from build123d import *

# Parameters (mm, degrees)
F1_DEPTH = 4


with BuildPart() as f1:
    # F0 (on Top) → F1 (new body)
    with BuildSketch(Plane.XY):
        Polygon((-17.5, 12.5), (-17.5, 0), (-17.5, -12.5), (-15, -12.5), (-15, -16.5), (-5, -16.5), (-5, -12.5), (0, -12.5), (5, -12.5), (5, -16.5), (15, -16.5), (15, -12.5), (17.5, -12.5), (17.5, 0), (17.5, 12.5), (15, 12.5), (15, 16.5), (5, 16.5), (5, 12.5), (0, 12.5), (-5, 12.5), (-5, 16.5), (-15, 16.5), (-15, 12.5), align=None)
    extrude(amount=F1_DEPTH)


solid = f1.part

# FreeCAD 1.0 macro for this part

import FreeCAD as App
import Part
import Sketcher

V = App.Vector
Q = App.Units.Quantity


def add_polygon(sketch, points):
    """Adds a closed chain of lines whose ends are joined by coincident constraints."""
    first, n = sketch.GeometryCount, len(points)
    for a, b in zip(points, points[1:] + points[:1]):
        sketch.addGeometry(Part.LineSegment(App.Vector(*a, 0), App.Vector(*b, 0)), False)
    for i in range(n):
        sketch.addConstraint(Sketcher.Constraint("Coincident", first + i, 2, first + (i + 1) % n, 1))

doc = App.newDocument("Part")
body = doc.addObject("PartDesign::Body", "Body")

sketch1 = body.newObject("Sketcher::SketchObject", "Sketch")
sketch1.AttachmentSupport = (doc.getObject("XY_Plane"), [""])
sketch1.MapMode = "FlatFace"
add_polygon(sketch1, [(-17.5, 12.5), (-17.5, -12.5), (-15, -12.5), (-15, -16.5), (-5, -16.5), (-5, -12.5), (5, -12.5), (5, -16.5), (15, -16.5), (15, -12.5), (17.5, -12.5), (17.5, 12.5), (15, 12.5), (15, 16.5), (5, 16.5), (5, 12.5), (-5, 12.5), (-5, 16.5), (-15, 16.5), (-15, 12.5)])
sketch1.addConstraint([
    Sketcher.Constraint("Vertical", 0),
    Sketcher.Constraint("Horizontal", 1),
    Sketcher.Constraint("Vertical", 2),
    Sketcher.Constraint("Horizontal", 3),
    Sketcher.Constraint("Vertical", 4),
    Sketcher.Constraint("Horizontal", 5),
    Sketcher.Constraint("Vertical", 6),
    Sketcher.Constraint("Horizontal", 7),
    Sketcher.Constraint("Vertical", 8),
    Sketcher.Constraint("Horizontal", 9),
    Sketcher.Constraint("Vertical", 10),
    Sketcher.Constraint("Horizontal", 11),
    Sketcher.Constraint("Vertical", 12),
    Sketcher.Constraint("Horizontal", 13),
    Sketcher.Constraint("Vertical", 14),
    Sketcher.Constraint("Horizontal", 15),
    Sketcher.Constraint("Vertical", 16),
    Sketcher.Constraint("Horizontal", 17),
    Sketcher.Constraint("Vertical", 18),
    Sketcher.Constraint("Horizontal", 19),
    Sketcher.Constraint("Symmetric", 0, 2, 10, 2, -1, 1),
    Sketcher.Constraint("Symmetric", 2, 2, 12, 2, -1, 1),
    Sketcher.Constraint("Symmetric", 4, 2, 14, 2, -1, 1),
    Sketcher.Constraint("Symmetric", 6, 2, 16, 2, -1, 1),
    Sketcher.Constraint("Symmetric", 8, 2, 18, 2, -1, 1),
    Sketcher.Constraint("Symmetric", 3, 2, 6, 2, -2),
    Sketcher.Constraint("Symmetric", 1, 2, 8, 2, -2),
    Sketcher.Constraint("Horizontal", 1, 2, 4, 2),
    Sketcher.Constraint("Equal", 3, 5),
    Sketcher.Constraint("DistanceX", 3, 1, 3, 2, Q("10 mm")),
    Sketcher.Constraint("DistanceY", 0, 2, 0, 1, Q("25 mm")),
    Sketcher.Constraint("DistanceY", 2, 2, 2, 1, Q("4 mm")),
    Sketcher.Constraint("DistanceX", 1, 1, 1, 2, Q("2.5 mm")),
])
pad1 = body.newObject("PartDesign::Pad", "Pad")
pad1.Profile = sketch1
pad1.Length = 4

doc.recompute()
